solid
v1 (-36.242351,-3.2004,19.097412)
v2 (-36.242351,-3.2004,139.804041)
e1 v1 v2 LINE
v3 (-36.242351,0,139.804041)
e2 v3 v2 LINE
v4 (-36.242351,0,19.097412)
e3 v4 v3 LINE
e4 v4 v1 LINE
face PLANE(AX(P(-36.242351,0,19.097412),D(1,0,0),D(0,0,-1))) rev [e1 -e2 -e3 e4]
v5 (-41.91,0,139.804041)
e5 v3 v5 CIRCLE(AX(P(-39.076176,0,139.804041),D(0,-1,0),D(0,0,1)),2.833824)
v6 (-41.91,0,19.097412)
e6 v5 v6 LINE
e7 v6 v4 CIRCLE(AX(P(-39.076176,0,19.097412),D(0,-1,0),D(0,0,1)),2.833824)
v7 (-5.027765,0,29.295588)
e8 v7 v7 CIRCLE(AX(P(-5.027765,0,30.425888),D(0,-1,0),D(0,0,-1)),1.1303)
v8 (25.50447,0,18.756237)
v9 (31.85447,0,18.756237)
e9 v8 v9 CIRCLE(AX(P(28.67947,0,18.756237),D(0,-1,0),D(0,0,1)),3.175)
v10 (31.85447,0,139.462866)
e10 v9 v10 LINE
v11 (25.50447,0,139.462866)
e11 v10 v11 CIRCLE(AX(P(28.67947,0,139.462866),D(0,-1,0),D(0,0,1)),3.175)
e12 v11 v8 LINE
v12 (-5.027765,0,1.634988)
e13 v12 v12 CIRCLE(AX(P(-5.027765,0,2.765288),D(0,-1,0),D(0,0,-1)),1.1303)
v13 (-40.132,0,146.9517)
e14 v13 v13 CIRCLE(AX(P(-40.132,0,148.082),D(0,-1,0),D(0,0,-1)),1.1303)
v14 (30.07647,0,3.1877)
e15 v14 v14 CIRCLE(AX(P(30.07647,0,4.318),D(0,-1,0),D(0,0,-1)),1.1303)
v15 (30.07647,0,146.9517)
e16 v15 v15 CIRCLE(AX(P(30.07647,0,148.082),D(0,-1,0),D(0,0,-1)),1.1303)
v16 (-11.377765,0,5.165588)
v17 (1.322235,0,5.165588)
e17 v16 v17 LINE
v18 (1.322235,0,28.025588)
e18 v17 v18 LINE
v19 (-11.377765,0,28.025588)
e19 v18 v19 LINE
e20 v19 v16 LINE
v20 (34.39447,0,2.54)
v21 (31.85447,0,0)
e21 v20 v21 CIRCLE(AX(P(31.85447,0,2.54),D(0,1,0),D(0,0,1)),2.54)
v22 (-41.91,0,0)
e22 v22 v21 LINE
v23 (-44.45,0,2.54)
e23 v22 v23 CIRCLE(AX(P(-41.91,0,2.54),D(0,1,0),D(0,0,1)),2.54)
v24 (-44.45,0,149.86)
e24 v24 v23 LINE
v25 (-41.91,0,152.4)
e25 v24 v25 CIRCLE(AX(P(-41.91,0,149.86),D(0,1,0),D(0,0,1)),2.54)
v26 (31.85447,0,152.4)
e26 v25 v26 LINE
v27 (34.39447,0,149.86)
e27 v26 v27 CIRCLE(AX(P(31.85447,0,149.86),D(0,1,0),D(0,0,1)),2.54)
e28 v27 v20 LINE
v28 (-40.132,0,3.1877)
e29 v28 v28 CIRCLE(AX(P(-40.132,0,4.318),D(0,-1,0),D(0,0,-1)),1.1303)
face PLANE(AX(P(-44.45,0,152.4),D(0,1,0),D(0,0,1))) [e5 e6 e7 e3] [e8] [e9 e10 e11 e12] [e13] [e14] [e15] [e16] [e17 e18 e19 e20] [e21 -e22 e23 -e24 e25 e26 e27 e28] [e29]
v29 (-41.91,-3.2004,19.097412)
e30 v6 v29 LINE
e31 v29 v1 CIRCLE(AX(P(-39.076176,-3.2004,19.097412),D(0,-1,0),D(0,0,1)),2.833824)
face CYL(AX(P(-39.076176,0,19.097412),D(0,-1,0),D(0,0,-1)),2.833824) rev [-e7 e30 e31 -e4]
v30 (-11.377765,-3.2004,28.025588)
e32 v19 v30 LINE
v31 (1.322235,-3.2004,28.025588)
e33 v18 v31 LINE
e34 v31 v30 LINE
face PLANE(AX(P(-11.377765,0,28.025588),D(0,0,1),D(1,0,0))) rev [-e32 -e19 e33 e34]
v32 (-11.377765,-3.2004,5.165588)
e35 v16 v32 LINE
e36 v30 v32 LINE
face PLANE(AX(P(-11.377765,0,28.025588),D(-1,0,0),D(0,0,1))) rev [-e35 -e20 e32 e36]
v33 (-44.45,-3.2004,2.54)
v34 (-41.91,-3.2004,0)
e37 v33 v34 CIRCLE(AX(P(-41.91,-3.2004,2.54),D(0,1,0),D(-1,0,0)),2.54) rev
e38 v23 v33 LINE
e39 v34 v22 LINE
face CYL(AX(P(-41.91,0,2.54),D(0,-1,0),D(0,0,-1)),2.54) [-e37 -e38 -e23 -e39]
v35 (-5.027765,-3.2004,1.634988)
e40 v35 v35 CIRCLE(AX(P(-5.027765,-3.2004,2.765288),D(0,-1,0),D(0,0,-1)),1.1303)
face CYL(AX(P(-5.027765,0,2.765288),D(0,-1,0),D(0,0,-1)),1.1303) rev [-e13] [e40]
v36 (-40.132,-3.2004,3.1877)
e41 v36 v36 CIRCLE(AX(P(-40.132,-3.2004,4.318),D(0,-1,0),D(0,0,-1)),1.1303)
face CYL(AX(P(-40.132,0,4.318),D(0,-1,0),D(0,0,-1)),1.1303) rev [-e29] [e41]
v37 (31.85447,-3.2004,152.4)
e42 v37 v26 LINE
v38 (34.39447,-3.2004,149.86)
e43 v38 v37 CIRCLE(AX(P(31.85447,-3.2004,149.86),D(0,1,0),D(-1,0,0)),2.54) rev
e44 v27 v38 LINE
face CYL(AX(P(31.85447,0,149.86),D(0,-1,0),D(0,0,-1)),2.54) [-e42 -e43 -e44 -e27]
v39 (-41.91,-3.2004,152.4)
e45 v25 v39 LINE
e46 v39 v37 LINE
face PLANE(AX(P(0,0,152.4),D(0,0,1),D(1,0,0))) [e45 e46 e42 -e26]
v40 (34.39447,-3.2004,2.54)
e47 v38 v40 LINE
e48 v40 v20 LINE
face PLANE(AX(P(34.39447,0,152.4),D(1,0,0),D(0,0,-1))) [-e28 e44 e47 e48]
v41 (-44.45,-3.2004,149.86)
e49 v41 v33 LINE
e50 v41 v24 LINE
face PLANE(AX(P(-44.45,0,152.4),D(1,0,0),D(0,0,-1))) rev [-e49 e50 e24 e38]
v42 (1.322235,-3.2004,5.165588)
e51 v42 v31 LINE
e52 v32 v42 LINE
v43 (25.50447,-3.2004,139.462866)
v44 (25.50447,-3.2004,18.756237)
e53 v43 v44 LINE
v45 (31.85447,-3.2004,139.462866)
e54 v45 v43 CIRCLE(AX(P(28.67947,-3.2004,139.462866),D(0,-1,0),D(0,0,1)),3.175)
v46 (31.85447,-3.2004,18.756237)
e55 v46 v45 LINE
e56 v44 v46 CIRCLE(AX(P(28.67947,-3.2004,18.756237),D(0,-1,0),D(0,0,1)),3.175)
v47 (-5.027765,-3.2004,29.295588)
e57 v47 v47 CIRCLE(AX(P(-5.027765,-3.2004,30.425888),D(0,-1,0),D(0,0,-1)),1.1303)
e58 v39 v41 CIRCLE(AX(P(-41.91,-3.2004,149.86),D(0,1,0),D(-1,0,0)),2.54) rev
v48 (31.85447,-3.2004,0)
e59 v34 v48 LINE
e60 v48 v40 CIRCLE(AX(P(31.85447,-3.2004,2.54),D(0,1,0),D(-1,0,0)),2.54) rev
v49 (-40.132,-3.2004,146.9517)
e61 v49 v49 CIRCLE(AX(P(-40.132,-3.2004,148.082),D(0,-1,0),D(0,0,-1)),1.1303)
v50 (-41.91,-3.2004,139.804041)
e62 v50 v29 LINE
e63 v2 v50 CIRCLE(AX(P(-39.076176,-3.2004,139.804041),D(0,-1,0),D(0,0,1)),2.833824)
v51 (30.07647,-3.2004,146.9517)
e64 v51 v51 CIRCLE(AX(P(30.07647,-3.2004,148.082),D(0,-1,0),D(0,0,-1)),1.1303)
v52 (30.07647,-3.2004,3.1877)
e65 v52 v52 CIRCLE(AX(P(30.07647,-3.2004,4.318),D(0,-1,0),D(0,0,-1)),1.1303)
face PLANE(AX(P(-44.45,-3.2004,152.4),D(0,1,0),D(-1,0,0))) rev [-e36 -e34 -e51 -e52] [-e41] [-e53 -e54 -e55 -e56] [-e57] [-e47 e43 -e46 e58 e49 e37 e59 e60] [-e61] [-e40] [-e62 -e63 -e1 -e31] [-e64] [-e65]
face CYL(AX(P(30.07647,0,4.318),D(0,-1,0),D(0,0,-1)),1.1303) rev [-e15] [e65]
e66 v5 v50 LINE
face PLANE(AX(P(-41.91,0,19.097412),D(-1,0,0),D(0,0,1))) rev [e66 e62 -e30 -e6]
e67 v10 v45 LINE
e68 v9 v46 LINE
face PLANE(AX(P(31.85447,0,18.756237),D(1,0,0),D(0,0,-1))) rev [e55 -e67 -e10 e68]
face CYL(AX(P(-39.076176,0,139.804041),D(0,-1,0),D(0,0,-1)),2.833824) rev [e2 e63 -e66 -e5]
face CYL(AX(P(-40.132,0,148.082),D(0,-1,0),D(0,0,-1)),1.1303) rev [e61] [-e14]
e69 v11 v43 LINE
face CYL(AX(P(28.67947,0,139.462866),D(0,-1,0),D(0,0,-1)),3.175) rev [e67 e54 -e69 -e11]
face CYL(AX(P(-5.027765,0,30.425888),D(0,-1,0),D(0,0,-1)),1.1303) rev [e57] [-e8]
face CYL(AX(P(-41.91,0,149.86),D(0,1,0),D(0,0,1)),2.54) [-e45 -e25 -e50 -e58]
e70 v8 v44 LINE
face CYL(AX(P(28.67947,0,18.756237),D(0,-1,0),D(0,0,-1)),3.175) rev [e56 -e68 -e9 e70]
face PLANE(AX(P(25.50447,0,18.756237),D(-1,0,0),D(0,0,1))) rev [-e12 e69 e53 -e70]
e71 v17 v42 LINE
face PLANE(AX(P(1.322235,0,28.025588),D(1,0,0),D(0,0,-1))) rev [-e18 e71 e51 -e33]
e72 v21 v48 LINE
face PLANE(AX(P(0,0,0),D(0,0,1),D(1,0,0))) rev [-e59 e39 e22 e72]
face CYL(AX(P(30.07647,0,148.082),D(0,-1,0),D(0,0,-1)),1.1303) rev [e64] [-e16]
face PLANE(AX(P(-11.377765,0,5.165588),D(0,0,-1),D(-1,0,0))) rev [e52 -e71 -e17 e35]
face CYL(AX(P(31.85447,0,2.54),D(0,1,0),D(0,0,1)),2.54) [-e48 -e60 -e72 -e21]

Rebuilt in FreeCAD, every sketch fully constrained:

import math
import FreeCAD as App
import Part
import Sketcher

V = App.Vector
Q = App.Units.Quantity


def edges_at(feature, points):
    """Names of the edges that pass closest to the given points."""
    edges = feature.Shape.Edges
    near = lambda p: min(range(len(edges)), key=lambda i: edges[i].distToShape(Part.Vertex(*p))[0])
    return sorted({f"Edge{near(p) + 1}" for p in points})

doc = App.newDocument("Part")
body = doc.addObject("PartDesign::Body", "Body")

sketch1 = body.newObject("Sketcher::SketchObject", "Sketch")
sketch1.AttachmentSupport = (doc.getObject("XY_Plane"), [""])
sketch1.MapMode = "FlatFace"
sketch1.addGeometry([
    Part.LineSegment(V(-44.5, 0, 0), V(-44.5, -3.2, 0)),
    Part.LineSegment(V(-44.5, -3.2, 0), V(34.4, -3.2, 0)),
    Part.LineSegment(V(34.4, -3.2, 0), V(34.4, 0, 0)),
    Part.LineSegment(V(34.4, 0, 0), V(-44.5, 0, 0)),
], False)
sketch1.addConstraint([
    Sketcher.Constraint("Coincident", 0, 2, 1, 1),
    Sketcher.Constraint("Coincident", 1, 2, 2, 1),
    Sketcher.Constraint("Coincident", 2, 2, 3, 1),
    Sketcher.Constraint("Coincident", 3, 2, 0, 1),
    Sketcher.Constraint("Vertical", 0),
    Sketcher.Constraint("Horizontal", 1),
    Sketcher.Constraint("Vertical", 2),
    Sketcher.Constraint("Horizontal", 3),
    Sketcher.Constraint("PointOnObject", 2, 2, -1),
    Sketcher.Constraint("DistanceY", 0, 2, 0, 1, Q("0.126 in")),
    Sketcher.Constraint("DistanceX", 0, 2, -1, 1, Q("1.75 in")),
    Sketcher.Constraint("DistanceX", 1, 1, 1, 2, Q("78.84447 mm")),
])
pad1 = body.newObject("PartDesign::Pad", "Pad")
pad1.Profile = sketch1
pad1.Length = Q("6 in")

sketch2 = body.newObject("Sketcher::SketchObject", "Sketch001")
sketch2.AttachmentSupport = (doc.getObject("XZ_Plane"), [""])
sketch2.MapMode = "FlatFace"
sketch2.AttachmentOffset = App.Placement(V(0, 0, 0.126 * 25.4), App.Rotation())
sketch2.addGeometry([
    Part.Circle(V(-40.1, 148.1, 0), V(0, 0, 1), 1.1),
    Part.Circle(V(30.1, 148.1, 0), V(0, 0, 1), 1.1),
    Part.Circle(V(-40.1, 4.3, 0), V(0, 0, 1), 1.1),
    Part.Circle(V(30.1, 4.3, 0), V(0, 0, 1), 1.1),
    Part.Circle(V(-5, 30.4, 0), V(0, 0, 1), 1.1),
    Part.Circle(V(-5, 2.8, 0), V(0, 0, 1), 1.1),
    Part.LineSegment(V(-41.9, 139.8, 0), V(-41.9, 19.1, 0)),
    Part.ArcOfCircle(Part.Circle(V(-39.1, 19.1, 0), V(0, 0, 1), 2.8), math.radians(180), math.radians(360)),
    Part.LineSegment(V(-36.2, 19.1, 0), V(-36.2, 139.8, 0)),
    Part.ArcOfCircle(Part.Circle(V(-39.1, 139.8, 0), V(0, 0, 1), 2.8), math.radians(0), math.radians(180)),
    Part.LineSegment(V(25.5, 139.5, 0), V(25.5, 18.8, 0)),
    Part.ArcOfCircle(Part.Circle(V(28.7, 18.8, 0), V(0, 0, 1), 3.2), math.radians(180), math.radians(360)),
    Part.LineSegment(V(31.9, 18.8, 0), V(31.9, 139.5, 0)),
    Part.ArcOfCircle(Part.Circle(V(28.7, 139.5, 0), V(0, 0, 1), 3.2), math.radians(0), math.radians(180)),
    Part.LineSegment(V(-11.4, 28, 0), V(-11.4, 5.2, 0)),
    Part.LineSegment(V(-11.4, 5.2, 0), V(1.3, 5.2, 0)),
    Part.LineSegment(V(1.3, 5.2, 0), V(1.3, 28, 0)),
    Part.LineSegment(V(1.3, 28, 0), V(-11.4, 28, 0)),
], False)
sketch2.addConstraint([
    Sketcher.Constraint("Tangent", 6, 2, 7, 1),
    Sketcher.Constraint("Tangent", 7, 2, 8, 1),
    Sketcher.Constraint("Tangent", 8, 2, 9, 1),
    Sketcher.Constraint("Tangent", 9, 2, 6, 1),
    Sketcher.Constraint("Tangent", 10, 2, 11, 1),
    Sketcher.Constraint("Tangent", 11, 2, 12, 1),
    Sketcher.Constraint("Tangent", 12, 2, 13, 1),
    Sketcher.Constraint("Tangent", 13, 2, 10, 1),
    Sketcher.Constraint("Coincident", 14, 2, 15, 1),
    Sketcher.Constraint("Coincident", 15, 2, 16, 1),
    Sketcher.Constraint("Coincident", 16, 2, 17, 1),
    Sketcher.Constraint("Coincident", 17, 2, 14, 1),
    Sketcher.Constraint("Vertical", 6),
    Sketcher.Constraint("Vertical", 8),
    Sketcher.Constraint("Vertical", 10),
    Sketcher.Constraint("Vertical", 12),
    Sketcher.Constraint("Vertical", 14),
    Sketcher.Constraint("Horizontal", 15),
    Sketcher.Constraint("Vertical", 16),
    Sketcher.Constraint("Horizontal", 17),
    Sketcher.Constraint("Equal", 0, 1),
    Sketcher.Constraint("Equal", 1, 2),
    Sketcher.Constraint("Equal", 2, 3),
    Sketcher.Constraint("Equal", 3, 4),
    Sketcher.Constraint("Equal", 4, 5),
    Sketcher.Constraint("Horizontal", 0, 3, 1, 3),
    Sketcher.Constraint("Horizontal", 2, 3, 3, 3),
    Sketcher.Constraint("Vertical", 0, 3, 2, 3),
    Sketcher.Constraint("Vertical", 1, 3, 3, 3),
    Sketcher.Constraint("Vertical", 4, 3, 5, 3),
    Sketcher.Constraint("Equal", 8, 10),
    Sketcher.Constraint("Diameter", 0, Q("0.089 in")),
    Sketcher.Constraint("DistanceX", 15, 1, 15, 2, Q("0.5 in")),
    Sketcher.Constraint("DistanceY", 14, 2, 14, 1, Q("0.9 in")),
    Sketcher.Constraint("Radius", 11, Q("0.125 in")),
    Sketcher.Constraint("DistanceX", 0, 3, -1, 1, Q("1.58 in")),
    Sketcher.Constraint("DistanceY", -1, 1, 0, 3, Q("5.83 in")),
    Sketcher.Constraint("DistanceY", -1, 1, 2, 3, Q("0.17 in")),
    Sketcher.Constraint("DistanceX", 6, 2, -1, 1, Q("1.65 in")),
    Sketcher.Constraint("DistanceX", 10, 2, 3, 3, Q("0.18 in")),
    Sketcher.Constraint("DistanceX", 14, 2, 5, 3, Q("0.25 in")),
    Sketcher.Constraint("DistanceY", 5, 3, 4, 3, Q("1.089 in")),
    Sketcher.Constraint("Radius", 7, Q("2.833824 mm")),
    Sketcher.Constraint("DistanceY", 5, 3, 14, 2, Q("0.0945 in")),
    Sketcher.Constraint("DistanceY", 6, 2, 6, 1, Q("120.706629 mm")),
    Sketcher.Constraint("DistanceX", -1, 1, 1, 3, Q("30.07647 mm")),
    Sketcher.Constraint("DistanceY", -1, 1, 9, 3, Q("139.804041 mm")),
    Sketcher.Constraint("DistanceX", 7, 3, 4, 3, Q("34.048411 mm")),
    Sketcher.Constraint("DistanceY", 11, 3, 4, 3, Q("11.669651 mm")),
    Sketcher.Constraint("DistanceY", -1, 1, 4, 3, Q("30.425888 mm")),
])
pocket1 = body.newObject("PartDesign::Pocket", "Pocket")
pocket1.Profile = sketch2
pocket1.Type = "ThroughAll"
doc.recompute()

fillet = body.newObject("PartDesign::Fillet", "Fillet")
fillet.Base = (pocket1, edges_at(pocket1, [
    (34.394, -1.6, 152.4),
    (-44.45, -1.6, 152.4),
    (34.394, -1.6, 0),
    (-44.45, -1.6, 0),
]))
fillet.Radius = Q("0.1 in")

doc.recompute()
